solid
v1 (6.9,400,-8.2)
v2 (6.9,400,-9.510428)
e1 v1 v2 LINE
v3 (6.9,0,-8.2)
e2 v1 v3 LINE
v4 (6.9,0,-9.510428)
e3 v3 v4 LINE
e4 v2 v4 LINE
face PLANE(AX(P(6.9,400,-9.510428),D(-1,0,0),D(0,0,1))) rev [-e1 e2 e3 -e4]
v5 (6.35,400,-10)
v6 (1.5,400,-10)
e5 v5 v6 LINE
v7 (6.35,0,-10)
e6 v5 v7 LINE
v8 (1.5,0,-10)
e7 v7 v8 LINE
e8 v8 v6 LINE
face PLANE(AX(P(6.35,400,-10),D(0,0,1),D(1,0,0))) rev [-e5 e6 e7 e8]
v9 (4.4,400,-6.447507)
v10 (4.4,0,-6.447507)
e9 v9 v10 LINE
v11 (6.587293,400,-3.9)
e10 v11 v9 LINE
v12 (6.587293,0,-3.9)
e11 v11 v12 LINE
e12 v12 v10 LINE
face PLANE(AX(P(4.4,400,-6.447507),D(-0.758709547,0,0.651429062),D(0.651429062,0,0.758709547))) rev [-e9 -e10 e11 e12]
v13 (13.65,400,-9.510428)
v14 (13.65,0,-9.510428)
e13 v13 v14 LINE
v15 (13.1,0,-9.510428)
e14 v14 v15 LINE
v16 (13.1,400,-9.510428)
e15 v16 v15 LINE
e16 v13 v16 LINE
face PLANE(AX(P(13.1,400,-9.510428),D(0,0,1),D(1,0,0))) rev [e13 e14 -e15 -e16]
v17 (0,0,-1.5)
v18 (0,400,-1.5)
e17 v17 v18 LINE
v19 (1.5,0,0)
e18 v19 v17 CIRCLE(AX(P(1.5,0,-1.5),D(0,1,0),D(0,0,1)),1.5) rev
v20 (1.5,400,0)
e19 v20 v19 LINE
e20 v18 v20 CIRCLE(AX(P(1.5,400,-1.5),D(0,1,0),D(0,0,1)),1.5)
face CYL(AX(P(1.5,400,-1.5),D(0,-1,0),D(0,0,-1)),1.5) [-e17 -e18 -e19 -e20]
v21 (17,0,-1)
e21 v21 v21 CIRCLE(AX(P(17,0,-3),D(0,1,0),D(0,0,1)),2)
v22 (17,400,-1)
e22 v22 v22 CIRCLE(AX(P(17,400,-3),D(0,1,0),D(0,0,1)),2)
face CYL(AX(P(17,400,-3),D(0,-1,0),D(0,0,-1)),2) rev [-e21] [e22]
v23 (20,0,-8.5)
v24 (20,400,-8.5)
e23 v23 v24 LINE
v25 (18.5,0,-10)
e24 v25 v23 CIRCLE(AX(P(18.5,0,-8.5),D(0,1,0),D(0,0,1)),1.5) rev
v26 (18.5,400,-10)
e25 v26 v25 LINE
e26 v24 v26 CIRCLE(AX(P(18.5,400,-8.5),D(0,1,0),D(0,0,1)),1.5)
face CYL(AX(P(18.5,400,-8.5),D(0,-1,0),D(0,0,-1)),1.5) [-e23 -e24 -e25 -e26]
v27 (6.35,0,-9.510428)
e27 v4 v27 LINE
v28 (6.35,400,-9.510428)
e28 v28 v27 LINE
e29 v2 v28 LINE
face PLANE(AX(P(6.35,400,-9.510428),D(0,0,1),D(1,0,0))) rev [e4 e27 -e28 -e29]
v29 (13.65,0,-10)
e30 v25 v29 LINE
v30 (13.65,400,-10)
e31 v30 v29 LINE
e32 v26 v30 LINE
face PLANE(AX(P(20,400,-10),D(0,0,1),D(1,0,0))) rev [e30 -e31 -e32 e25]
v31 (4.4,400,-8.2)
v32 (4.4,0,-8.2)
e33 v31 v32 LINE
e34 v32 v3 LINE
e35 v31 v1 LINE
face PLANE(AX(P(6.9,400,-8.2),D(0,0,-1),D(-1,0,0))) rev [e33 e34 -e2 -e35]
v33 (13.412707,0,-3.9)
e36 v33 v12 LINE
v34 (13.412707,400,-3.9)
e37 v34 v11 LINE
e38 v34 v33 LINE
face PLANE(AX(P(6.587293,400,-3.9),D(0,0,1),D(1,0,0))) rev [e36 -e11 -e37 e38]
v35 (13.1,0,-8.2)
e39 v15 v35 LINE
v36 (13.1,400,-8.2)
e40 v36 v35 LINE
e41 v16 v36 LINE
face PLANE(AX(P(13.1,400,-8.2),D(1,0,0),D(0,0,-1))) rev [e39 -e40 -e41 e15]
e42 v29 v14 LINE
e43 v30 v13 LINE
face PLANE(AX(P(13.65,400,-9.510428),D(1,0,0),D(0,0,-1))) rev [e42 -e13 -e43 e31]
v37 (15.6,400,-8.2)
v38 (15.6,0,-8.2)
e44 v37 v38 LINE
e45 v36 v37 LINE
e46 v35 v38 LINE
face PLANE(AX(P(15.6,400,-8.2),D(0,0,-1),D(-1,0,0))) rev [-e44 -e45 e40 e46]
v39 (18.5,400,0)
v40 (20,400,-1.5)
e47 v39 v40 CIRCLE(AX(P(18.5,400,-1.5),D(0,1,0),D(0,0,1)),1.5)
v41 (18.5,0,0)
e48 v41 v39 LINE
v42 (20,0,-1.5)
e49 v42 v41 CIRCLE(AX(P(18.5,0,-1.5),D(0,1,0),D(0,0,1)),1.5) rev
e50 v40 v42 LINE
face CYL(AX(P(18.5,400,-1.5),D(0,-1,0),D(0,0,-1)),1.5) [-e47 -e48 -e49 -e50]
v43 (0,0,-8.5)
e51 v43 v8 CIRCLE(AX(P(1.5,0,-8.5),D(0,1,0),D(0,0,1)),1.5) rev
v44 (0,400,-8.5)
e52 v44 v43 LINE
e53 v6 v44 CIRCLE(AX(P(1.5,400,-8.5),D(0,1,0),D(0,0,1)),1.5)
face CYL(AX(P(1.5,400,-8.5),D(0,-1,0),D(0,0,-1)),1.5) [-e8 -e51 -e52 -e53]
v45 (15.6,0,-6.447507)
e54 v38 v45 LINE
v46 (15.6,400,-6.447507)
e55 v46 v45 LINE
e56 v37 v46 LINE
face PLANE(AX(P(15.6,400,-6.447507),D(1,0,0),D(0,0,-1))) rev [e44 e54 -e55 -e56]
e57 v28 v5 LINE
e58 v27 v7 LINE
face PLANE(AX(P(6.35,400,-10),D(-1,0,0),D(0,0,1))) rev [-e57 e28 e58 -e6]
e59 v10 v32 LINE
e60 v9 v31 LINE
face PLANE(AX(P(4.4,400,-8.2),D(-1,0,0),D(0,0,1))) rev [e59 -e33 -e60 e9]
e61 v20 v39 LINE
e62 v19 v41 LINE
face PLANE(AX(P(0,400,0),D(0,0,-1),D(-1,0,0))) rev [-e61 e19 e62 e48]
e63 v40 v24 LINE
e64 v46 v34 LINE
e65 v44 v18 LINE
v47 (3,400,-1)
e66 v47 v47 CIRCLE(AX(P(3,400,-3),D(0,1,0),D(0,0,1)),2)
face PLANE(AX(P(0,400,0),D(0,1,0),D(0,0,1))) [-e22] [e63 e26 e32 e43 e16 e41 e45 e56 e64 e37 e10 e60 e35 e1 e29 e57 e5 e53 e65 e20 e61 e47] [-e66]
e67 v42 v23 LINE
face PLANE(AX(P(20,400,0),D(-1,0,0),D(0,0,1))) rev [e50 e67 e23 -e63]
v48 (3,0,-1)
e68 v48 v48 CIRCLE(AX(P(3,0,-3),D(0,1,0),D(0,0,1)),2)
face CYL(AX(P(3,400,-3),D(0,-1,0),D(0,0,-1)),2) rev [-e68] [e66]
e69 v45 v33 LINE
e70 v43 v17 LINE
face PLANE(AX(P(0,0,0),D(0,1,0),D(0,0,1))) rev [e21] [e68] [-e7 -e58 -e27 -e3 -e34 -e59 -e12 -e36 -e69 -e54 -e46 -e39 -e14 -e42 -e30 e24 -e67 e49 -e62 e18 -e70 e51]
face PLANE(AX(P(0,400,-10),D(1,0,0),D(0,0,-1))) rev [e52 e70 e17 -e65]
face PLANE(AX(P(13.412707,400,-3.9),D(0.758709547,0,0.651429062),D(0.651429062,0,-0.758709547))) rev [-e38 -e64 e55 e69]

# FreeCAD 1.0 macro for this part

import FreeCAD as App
import Part
import Sketcher

V = App.Vector
Q = App.Units.Quantity


def edges_at(feature, points):
    """Names of the edges that pass closest to the given points."""
    edges = feature.Shape.Edges
    near = lambda p: min(range(len(edges)), key=lambda i: edges[i].distToShape(Part.Vertex(*p))[0])
    return sorted({f"Edge{near(p) + 1}" for p in points})


def add_polygon(sketch, points):
    """Adds a closed chain of lines whose ends are joined by coincident constraints."""
    first, n = sketch.GeometryCount, len(points)
    for a, b in zip(points, points[1:] + points[:1]):
        sketch.addGeometry(Part.LineSegment(App.Vector(*a, 0), App.Vector(*b, 0)), False)
    for i in range(n):
        sketch.addConstraint(Sketcher.Constraint("Coincident", first + i, 2, first + (i + 1) % n, 1))

doc = App.newDocument("Part")
params = doc.addObject("Spreadsheet::Sheet", "Params")
for row, (alias, value) in enumerate([
    ("sketch1_diameter", "4 mm"),
    ("sketch1_width", "20 mm"),
    ("sketch1_height", "10 mm"),
    ("sketch1_width2", "2.5 mm"),
    ("sketch1_width3", "6.35 mm"),
    ("pad1_length", "400 mm"),
    ("fillet_radius", "1.5 mm"),
], start=1):
    params.set(f"A{row}", alias)
    params.set(f"B{row}", "=" + value)
    params.setAlias(f"B{row}", alias)

body = doc.addObject("PartDesign::Body", "Body")

sketch1 = doc.addObject("Sketcher::SketchObject", "Sketch")
body.addObject(sketch1)
sketch1.AttachmentSupport = (doc.XZ_Plane, [""])
sketch1.MapMode = "FlatFace"
add_polygon(sketch1, [(0, 0), (20, 0), (20, -10), (13.65, -10), (13.65, -9.510428), (13.1, -9.510428), (13.1, -8.2), (15.6, -8.2), (15.6, -6.447507), (13.412707, -3.9), (6.587293, -3.9), (4.4, -6.447507), (4.4, -8.2), (6.9, -8.2), (6.9, -9.510428), (6.35, -9.510428), (6.35, -10), (0, -10)])
sketch1.addGeometry(Part.Circle(V(3, -3, 0), V(0, 0, 1), 2), False)
sketch1.addGeometry(Part.Circle(V(17, -3, 0), V(0, 0, 1), 2), False)
sketch1.addConstraint(Sketcher.Constraint("Horizontal", 0))
sketch1.addConstraint(Sketcher.Constraint("Vertical", 1))
sketch1.addConstraint(Sketcher.Constraint("Horizontal", 2))
sketch1.addConstraint(Sketcher.Constraint("Vertical", 3))
sketch1.addConstraint(Sketcher.Constraint("Horizontal", 4))
sketch1.addConstraint(Sketcher.Constraint("Vertical", 5))
sketch1.addConstraint(Sketcher.Constraint("Horizontal", 6))
sketch1.addConstraint(Sketcher.Constraint("Vertical", 7))
sketch1.addConstraint(Sketcher.Constraint("Horizontal", 9))
sketch1.addConstraint(Sketcher.Constraint("Vertical", 11))
sketch1.addConstraint(Sketcher.Constraint("Horizontal", 12))
sketch1.addConstraint(Sketcher.Constraint("Vertical", 13))
sketch1.addConstraint(Sketcher.Constraint("Horizontal", 14))
sketch1.addConstraint(Sketcher.Constraint("Vertical", 15))
sketch1.addConstraint(Sketcher.Constraint("Horizontal", 16))
sketch1.addConstraint(Sketcher.Constraint("Vertical", 17))
sketch1.addConstraint(Sketcher.Constraint("Coincident", 17, 2, -1, 1))
sketch1.addConstraint(Sketcher.Constraint("Equal", 18, 19))
sketch1.addConstraint(Sketcher.Constraint("Horizontal", 18, 3, 19, 3))
sketch1.addConstraint(Sketcher.Constraint("Horizontal", 7, 2, 10, 2))
sketch1.addConstraint(Sketcher.Constraint("Horizontal", 6, 2, 11, 2))
sketch1.addConstraint(Sketcher.Constraint("Horizontal", 4, 2, 13, 2))
sketch1.addConstraint(Sketcher.Constraint("Horizontal", 2, 2, 15, 2))
sketch1.addConstraint(Sketcher.Constraint("Equal", 6, 12))
sketch1.addConstraint(Sketcher.Constraint("Equal", 4, 14))
sketch1.addConstraint(Sketcher.Constraint("Equal", 2, 16))
sketch1.addConstraint(Sketcher.Constraint("Equal", 8, 10))
sketch1.addConstraint(Sketcher.Constraint("Diameter", 18, Q("4 mm")))
sketch1.addConstraint(Sketcher.Constraint("DistanceX", 0, 1, 0, 2, Q("20 mm")))
sketch1.addConstraint(Sketcher.Constraint("DistanceY", 1, 2, 1, 1, Q("10 mm")))
sketch1.addConstraint(Sketcher.Constraint("DistanceX", 6, 1, 6, 2, Q("2.5 mm")))
sketch1.addConstraint(Sketcher.Constraint("DistanceX", -1, 1, 18, 3, Q("3 mm")))
sketch1.addConstraint(Sketcher.Constraint("DistanceY", 18, 3, -1, 1, Q("3 mm")))
sketch1.addConstraint(Sketcher.Constraint("DistanceX", -1, 1, 19, 3, Q("17 mm")))
sketch1.addConstraint(Sketcher.Constraint("DistanceX", 2, 2, 2, 1, Q("6.35 mm")))
sketch1.addConstraint(Sketcher.Constraint("DistanceX", 4, 2, 4, 1, Q("0.55 mm")))
sketch1.addConstraint(Sketcher.Constraint("DistanceY", 5, 2, -1, 1, Q("8.2 mm")))
sketch1.addConstraint(Sketcher.Constraint("DistanceY", 8, 2, -1, 1, Q("3.9 mm")))
sketch1.addConstraint(Sketcher.Constraint("DistanceX", 9, 2, 9, 1, Q("6.825414 mm")))
sketch1.addConstraint(Sketcher.Constraint("DistanceY", 3, 1, 3, 2, Q("0.489572 mm")))
sketch1.addConstraint(Sketcher.Constraint("DistanceY", 7, 1, 7, 2, Q("1.752493 mm")))
sketch1.setExpression("Constraints[45]", "Params.sketch1_diameter")
sketch1.setExpression("Constraints[46]", "Params.sketch1_width")
sketch1.setExpression("Constraints[47]", "Params.sketch1_height")
sketch1.setExpression("Constraints[48]", "Params.sketch1_width2")
sketch1.setExpression("Constraints[52]", "Params.sketch1_width3")
pad1 = doc.addObject("PartDesign::Pad", "Pad")
body.addObject(pad1)
pad1.Profile = sketch1
pad1.setExpression("Length", "Params.pad1_length")
pad1.Reversed = True
doc.recompute()

fillet = doc.addObject("PartDesign::Fillet", "Fillet")
body.addObject(fillet)
fillet.Base = (pad1, edges_at(pad1, [
    (0, 200, -10),
    (20, 200, -10),
    (20, 200, 0),
    (0, 200, 0),
]))
fillet.setExpression("Radius", "Params.fillet_radius")

doc.recompute()
